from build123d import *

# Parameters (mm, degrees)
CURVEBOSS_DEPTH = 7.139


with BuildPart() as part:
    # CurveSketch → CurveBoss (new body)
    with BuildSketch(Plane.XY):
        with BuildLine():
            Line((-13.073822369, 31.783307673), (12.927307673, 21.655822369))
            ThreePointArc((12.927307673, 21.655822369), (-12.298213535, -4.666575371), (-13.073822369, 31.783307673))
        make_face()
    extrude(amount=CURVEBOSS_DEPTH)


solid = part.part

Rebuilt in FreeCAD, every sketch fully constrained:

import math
import FreeCAD as App
import Part
import Sketcher
from FreeCAD import Vector
Q = App.Units.Quantity

doc = App.newDocument("Part")
params = doc.addObject("Spreadsheet::Sheet", "Params")
for row, (alias, value) in enumerate([
    ("pad1_length", "7.139 mm"),
], start=1):
    params.set(f"A{row}", alias)
    params.set(f"B{row}", "=" + value)
    params.setAlias(f"B{row}", alias)

body = doc.addObject("PartDesign::Body", "Body")

sketch1 = body.newObject("Sketcher::SketchObject", "Sketch")
sketch1.AttachmentSupport = (doc.getObject("XY_Plane"), [""])
sketch1.MapMode = "FlatFace"
sketch1.addGeometry(Part.LineSegment(Vector(12.927308, 21.655822, 0), Vector(-13.073822, 31.783308, 0)), False)
sketch1.addGeometry(Part.ArcOfCircle(Part.Circle(Vector(-5.137, 13.719, 0), Vector(0, 0, 1), 19.731), math.radians(113.719), math.radians(383.719)), False)
sketch1.addConstraint(Sketcher.Constraint("Coincident", 0, 1, 1, 2))
sketch1.addConstraint(Sketcher.Constraint("Coincident", 1, 1, 0, 2))
sketch1.addConstraint(Sketcher.Constraint("Radius", 1, Q("19.731 mm")))
sketch1.addConstraint(Sketcher.Constraint("DistanceX", 1, 3, -1, 1, Q("5.137 mm")))
sketch1.addConstraint(Sketcher.Constraint("DistanceY", -1, 1, 1, 3, Q("13.719 mm")))
sketch1.addConstraint(Sketcher.Constraint("DistanceX", 1, 1, 0, 1, Q("26.00113 mm")))
sketch1.addConstraint(Sketcher.Constraint("Distance", 0, Q("27.903848 mm")))
pad1 = body.newObject("PartDesign::Pad", "Pad")
pad1.Profile = sketch1
pad1.setExpression("Length", "Params.pad1_length")

doc.recompute()
